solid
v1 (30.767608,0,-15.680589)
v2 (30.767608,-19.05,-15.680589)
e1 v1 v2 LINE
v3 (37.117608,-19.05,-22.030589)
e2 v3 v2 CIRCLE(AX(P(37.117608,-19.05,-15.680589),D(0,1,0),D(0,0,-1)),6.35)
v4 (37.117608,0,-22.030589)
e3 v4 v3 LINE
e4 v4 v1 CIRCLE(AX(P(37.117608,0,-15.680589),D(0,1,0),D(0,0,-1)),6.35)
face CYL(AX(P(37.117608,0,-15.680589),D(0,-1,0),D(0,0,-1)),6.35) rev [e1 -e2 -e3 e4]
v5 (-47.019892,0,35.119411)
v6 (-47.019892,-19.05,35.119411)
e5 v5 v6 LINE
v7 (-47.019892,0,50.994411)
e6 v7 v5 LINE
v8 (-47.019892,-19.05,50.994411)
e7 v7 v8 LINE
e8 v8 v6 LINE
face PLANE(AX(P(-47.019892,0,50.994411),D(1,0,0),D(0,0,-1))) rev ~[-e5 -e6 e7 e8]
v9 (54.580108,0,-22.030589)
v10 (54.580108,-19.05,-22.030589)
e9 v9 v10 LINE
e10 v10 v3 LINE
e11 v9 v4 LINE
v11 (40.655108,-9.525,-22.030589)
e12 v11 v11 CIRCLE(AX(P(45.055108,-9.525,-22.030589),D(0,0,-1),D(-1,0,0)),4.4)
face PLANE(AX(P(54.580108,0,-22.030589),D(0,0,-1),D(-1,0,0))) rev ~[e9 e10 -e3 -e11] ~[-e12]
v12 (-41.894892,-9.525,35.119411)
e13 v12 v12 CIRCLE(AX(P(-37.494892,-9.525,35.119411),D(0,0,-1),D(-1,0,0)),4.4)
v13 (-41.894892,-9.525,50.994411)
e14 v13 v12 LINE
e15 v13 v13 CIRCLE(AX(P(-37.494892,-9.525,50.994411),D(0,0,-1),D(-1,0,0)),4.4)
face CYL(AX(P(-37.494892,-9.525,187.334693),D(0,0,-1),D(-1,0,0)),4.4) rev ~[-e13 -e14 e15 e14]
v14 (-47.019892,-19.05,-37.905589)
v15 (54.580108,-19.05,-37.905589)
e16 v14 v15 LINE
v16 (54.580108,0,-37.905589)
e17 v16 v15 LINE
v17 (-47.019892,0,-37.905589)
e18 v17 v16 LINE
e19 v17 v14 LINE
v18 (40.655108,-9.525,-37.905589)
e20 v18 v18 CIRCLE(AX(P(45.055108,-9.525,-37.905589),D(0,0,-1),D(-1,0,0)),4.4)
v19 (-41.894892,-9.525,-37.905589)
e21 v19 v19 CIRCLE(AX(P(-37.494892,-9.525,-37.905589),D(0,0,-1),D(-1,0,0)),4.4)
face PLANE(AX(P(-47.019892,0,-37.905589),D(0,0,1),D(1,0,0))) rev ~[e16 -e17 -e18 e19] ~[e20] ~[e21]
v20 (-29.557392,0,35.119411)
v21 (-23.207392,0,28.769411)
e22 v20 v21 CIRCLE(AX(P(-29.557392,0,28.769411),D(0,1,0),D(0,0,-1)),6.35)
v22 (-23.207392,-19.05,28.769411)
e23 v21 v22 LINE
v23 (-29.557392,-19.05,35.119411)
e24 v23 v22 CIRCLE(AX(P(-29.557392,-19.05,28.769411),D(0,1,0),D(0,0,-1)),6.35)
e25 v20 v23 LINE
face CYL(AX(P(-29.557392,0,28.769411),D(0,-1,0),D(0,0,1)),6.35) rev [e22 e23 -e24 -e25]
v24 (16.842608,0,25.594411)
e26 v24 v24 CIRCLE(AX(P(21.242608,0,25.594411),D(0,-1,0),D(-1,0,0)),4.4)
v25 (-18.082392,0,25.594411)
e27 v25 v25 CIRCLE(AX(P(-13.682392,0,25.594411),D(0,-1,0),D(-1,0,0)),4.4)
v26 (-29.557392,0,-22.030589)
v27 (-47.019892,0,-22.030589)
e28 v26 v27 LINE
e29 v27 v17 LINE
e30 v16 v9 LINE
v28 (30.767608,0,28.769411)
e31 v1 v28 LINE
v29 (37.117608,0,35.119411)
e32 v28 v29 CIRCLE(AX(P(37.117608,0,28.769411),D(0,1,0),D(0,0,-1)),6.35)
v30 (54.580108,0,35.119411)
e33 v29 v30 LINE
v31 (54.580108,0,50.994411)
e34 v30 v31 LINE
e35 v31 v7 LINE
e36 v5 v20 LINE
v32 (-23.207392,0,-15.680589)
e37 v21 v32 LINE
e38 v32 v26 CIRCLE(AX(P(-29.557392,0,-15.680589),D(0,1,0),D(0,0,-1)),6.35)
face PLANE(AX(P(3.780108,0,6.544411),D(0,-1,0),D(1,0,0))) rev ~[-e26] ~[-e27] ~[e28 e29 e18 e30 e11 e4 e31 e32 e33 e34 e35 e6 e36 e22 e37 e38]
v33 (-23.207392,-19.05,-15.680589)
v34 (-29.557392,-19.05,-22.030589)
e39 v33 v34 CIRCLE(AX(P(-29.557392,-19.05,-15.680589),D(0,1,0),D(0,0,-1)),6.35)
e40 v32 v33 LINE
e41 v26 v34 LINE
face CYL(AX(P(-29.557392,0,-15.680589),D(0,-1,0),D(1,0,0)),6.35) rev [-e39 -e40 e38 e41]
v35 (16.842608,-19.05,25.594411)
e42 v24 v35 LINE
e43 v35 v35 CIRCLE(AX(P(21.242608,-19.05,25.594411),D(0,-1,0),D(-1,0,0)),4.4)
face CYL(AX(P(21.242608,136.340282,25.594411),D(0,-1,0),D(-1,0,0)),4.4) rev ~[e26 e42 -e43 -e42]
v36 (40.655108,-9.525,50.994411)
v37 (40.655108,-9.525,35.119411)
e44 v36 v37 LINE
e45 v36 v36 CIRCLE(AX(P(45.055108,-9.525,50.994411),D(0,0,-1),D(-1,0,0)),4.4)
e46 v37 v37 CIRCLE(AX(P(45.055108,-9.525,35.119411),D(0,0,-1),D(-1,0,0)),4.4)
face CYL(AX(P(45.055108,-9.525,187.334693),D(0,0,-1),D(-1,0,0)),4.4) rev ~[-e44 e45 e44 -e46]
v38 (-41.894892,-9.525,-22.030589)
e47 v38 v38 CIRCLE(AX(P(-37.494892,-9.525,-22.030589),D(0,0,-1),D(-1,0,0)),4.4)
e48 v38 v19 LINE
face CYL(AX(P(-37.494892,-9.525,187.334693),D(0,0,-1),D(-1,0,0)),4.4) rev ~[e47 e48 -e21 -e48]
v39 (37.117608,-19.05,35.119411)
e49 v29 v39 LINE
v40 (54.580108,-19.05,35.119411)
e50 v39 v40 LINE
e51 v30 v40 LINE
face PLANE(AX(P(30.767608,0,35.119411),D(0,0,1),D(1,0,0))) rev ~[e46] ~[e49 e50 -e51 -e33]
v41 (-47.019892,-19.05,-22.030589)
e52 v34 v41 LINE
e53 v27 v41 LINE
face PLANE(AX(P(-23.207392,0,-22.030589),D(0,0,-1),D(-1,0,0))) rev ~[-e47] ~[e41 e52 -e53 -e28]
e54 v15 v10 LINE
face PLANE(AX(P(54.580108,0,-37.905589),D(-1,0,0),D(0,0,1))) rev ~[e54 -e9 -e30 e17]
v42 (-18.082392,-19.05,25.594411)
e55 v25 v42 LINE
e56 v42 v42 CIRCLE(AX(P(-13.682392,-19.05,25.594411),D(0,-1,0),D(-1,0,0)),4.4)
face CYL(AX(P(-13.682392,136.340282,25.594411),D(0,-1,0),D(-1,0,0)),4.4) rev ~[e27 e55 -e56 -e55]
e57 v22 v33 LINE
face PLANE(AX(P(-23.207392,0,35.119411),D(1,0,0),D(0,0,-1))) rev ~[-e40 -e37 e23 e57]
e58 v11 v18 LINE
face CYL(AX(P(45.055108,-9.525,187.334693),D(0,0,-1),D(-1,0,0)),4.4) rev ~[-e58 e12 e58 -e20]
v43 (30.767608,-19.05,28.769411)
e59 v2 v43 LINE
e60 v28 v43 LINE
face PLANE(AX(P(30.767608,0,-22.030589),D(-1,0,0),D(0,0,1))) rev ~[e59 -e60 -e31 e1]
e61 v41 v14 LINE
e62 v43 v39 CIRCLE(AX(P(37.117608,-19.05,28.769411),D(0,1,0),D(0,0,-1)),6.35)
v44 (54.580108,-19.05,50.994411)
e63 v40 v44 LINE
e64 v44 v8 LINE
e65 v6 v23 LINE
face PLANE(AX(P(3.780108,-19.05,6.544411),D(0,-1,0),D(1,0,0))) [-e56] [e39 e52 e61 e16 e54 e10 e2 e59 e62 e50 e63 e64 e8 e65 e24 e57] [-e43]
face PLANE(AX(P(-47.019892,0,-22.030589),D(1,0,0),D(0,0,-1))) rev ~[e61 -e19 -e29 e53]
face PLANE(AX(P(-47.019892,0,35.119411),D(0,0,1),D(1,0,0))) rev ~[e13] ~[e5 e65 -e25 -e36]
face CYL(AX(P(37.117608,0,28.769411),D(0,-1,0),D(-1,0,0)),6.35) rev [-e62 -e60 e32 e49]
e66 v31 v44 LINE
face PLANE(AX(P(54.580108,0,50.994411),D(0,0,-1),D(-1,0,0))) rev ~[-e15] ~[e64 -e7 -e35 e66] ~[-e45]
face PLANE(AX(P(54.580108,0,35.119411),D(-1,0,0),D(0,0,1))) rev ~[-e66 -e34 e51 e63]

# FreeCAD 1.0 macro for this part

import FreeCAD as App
import Part
import Sketcher

V = App.Vector
Q = App.Units.Quantity


def edges_at(feature, points):
    """Names of the edges that pass closest to the given points."""
    edges = feature.Shape.Edges
    near = lambda p: min(range(len(edges)), key=lambda i: edges[i].distToShape(Part.Vertex(*p))[0])
    return sorted({f"Edge{near(p) + 1}" for p in points})


def add_polygon(sketch, points):
    """Adds a closed chain of lines whose ends are joined by coincident constraints."""
    first, n = sketch.GeometryCount, len(points)
    for a, b in zip(points, points[1:] + points[:1]):
        sketch.addGeometry(Part.LineSegment(App.Vector(*a, 0), App.Vector(*b, 0)), False)
    for i in range(n):
        sketch.addConstraint(Sketcher.Constraint("Coincident", first + i, 2, first + (i + 1) % n, 1))

doc = App.newDocument("Part")
params = doc.addObject("Spreadsheet::Sheet", "Params")
for row, (alias, value) in enumerate([
    ("sketch1_width", "4 in"),
    ("sketch1_height", "2.25 in"),
    ("sketch1_width2", "0.9375 in"),
    ("sketch1_height2", "0.625 in"),
    ("pad1_length", "0.75 in"),
    ("fillet_radius", "0.25 in"),
    ("hole_diameter", "8.8 mm"),
    ("hole2_diameter", "8.8 mm"),
], start=1):
    params.set(f"A{row}", alias)
    params.set(f"B{row}", "=" + value)
    params.setAlias(f"B{row}", alias)

body = doc.addObject("PartDesign::Body", "Body")

# Sketch on XZ plane
sketch1 = body.newObject("Sketcher::SketchObject", "Sketch")
sketch1.AttachmentSupport = (doc.getObject("XZ_Plane"), [""])
sketch1.MapMode = "FlatFace"
add_polygon(sketch1, [(-47, 51), (-47, 35), (-23, 35), (-23, -22), (-47, -22), (-47, -38), (55, -38), (55, -22), (31, -22), (31, 35), (55, 35), (55, 51)])  # lines 0-11
sketch1.addConstraint(Sketcher.Constraint("Vertical", 0))
sketch1.addConstraint(Sketcher.Constraint("Horizontal", 1))
sketch1.addConstraint(Sketcher.Constraint("Vertical", 2))
sketch1.addConstraint(Sketcher.Constraint("Horizontal", 3))
sketch1.addConstraint(Sketcher.Constraint("Vertical", 4))
sketch1.addConstraint(Sketcher.Constraint("Horizontal", 5))
sketch1.addConstraint(Sketcher.Constraint("Vertical", 6))
sketch1.addConstraint(Sketcher.Constraint("Horizontal", 7))
sketch1.addConstraint(Sketcher.Constraint("Vertical", 8))
sketch1.addConstraint(Sketcher.Constraint("Horizontal", 9))
sketch1.addConstraint(Sketcher.Constraint("Vertical", 10))
sketch1.addConstraint(Sketcher.Constraint("Horizontal", 11))
sketch1.addConstraint(Sketcher.Constraint("Horizontal", 3, 2, 6, 2))
sketch1.addConstraint(Sketcher.Constraint("Horizontal", 1, 2, 8, 2))
sketch1.addConstraint(Sketcher.Constraint("Vertical", 0, 2, 3, 2))
sketch1.addConstraint(Sketcher.Constraint("Vertical", 6, 2, 9, 2))
sketch1.addConstraint(Sketcher.Constraint("Equal", 3, 7))
sketch1.addConstraint(Sketcher.Constraint("Equal", 0, 4))
sketch1.addConstraint(Sketcher.Constraint("DistanceX", 5, 1, 5, 2, Q("4 in")))
sketch1.addConstraint(Sketcher.Constraint("DistanceY", 2, 2, 2, 1, Q("2.25 in")))
sketch1.addConstraint(Sketcher.Constraint("DistanceX", 1, 1, 1, 2, Q("0.9375 in")))
sketch1.addConstraint(Sketcher.Constraint("DistanceY", 0, 2, 0, 1, Q("0.625 in")))
sketch1.addConstraint(Sketcher.Constraint("DistanceY", -1, 1, 0, 2, 35.119411))
sketch1.addConstraint(Sketcher.Constraint("DistanceX", 0, 2, -1, 1, 47.019892))
sketch1.setExpression("Constraints[30]", "Params.sketch1_width")
sketch1.setExpression("Constraints[31]", "Params.sketch1_height")
sketch1.setExpression("Constraints[32]", "Params.sketch1_width2")
sketch1.setExpression("Constraints[33]", "Params.sketch1_height2")
pad1 = body.newObject("PartDesign::Pad", "Pad")
pad1.Profile = sketch1
pad1.setExpression("Length", "Params.pad1_length")
doc.recompute()

fillet = body.newObject("PartDesign::Fillet", "Fillet")
fillet.Base = (pad1, edges_at(pad1, [
    (30.768, -9.525, -22.031),
    (30.768, -9.525, 35.119),
    (-23.207, -9.525, -22.031),
    (-23.207, -9.525, 35.119),
]))
fillet.setExpression("Radius", "Params.fillet_radius")

# Sketch on XY plane
sketch2 = body.newObject("Sketcher::SketchObject", "Sketch001")
sketch2.AttachmentSupport = (doc.getObject("XY_Plane"), [""])
sketch2.MapMode = "FlatFace"
sketch2.AttachmentOffset = App.Placement(V(0, 0, 50.994411), App.Rotation())
sketch2.addGeometry(Part.Circle(V(-37.5, -9.5, 0), V(0, 0, 1), 4.4), False)
sketch2.addGeometry(Part.Circle(V(45.1, -9.5, 0), V(0, 0, 1), 4.4), False)
sketch2.addConstraint(Sketcher.Constraint("Equal", 0, 1))
sketch2.addConstraint(Sketcher.Constraint("Horizontal", 0, 3, 1, 3))
sketch2.addConstraint(Sketcher.Constraint("Diameter", 0, 8.8))
sketch2.addConstraint(Sketcher.Constraint("DistanceX", 0, 3, 1, 3, Q("3.25 in")))
sketch2.addConstraint(Sketcher.Constraint("DistanceY", 0, 3, -1, 1, Q("0.375 in")))
sketch2.addConstraint(Sketcher.Constraint("DistanceX", 0, 3, -1, 1, 37.494892))
doc.recompute()
hole = body.newObject("PartDesign::Hole", "Hole")
hole.Profile = sketch2
hole.ThreadType = "None"
hole.setExpression("Diameter", "Params.hole_diameter")
hole.DepthType = "ThroughAll"

# Sketch on XZ plane
sketch3 = body.newObject("Sketcher::SketchObject", "Sketch002")
sketch3.AttachmentSupport = (doc.getObject("XZ_Plane"), [""])
sketch3.MapMode = "FlatFace"
sketch3.addGeometry(Part.Circle(V(-13.7, 25.6, 0), V(0, 0, 1), 4.4), False)
sketch3.addGeometry(Part.Circle(V(21.2, 25.6, 0), V(0, 0, 1), 4.4), False)
sketch3.addConstraint(Sketcher.Constraint("Equal", 0, 1))
sketch3.addConstraint(Sketcher.Constraint("Horizontal", 0, 3, 1, 3))
sketch3.addConstraint(Sketcher.Constraint("Diameter", 0, 8.8))
sketch3.addConstraint(Sketcher.Constraint("DistanceX", 0, 3, 1, 3, Q("1.375 in")))
sketch3.addConstraint(Sketcher.Constraint("DistanceY", -1, 1, 0, 3, 25.594411))
sketch3.addConstraint(Sketcher.Constraint("DistanceX", 0, 3, -1, 1, 13.682392))
doc.recompute()
hole2 = body.newObject("PartDesign::Hole", "Hole001")
hole2.Profile = sketch3
hole2.ThreadType = "None"
hole2.setExpression("Diameter", "Params.hole2_diameter")
hole2.DepthType = "ThroughAll"
hole2.Reversed = True

doc.recompute()
